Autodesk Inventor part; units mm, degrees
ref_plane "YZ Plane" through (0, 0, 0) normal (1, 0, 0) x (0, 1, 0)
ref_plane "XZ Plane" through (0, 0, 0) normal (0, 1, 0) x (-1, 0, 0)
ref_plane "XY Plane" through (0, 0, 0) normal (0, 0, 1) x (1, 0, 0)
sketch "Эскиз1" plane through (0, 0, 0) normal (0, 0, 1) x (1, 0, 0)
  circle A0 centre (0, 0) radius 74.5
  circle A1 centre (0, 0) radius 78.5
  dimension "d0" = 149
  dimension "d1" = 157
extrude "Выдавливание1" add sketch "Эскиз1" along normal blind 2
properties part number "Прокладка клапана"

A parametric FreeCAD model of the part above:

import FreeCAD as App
import Part
import Sketcher

V = App.Vector

doc = App.newDocument("Part")
body = doc.addObject("PartDesign::Body", "Body")

sketch1 = body.newObject("Sketcher::SketchObject", "Sketch")
sketch1.AttachmentSupport = (doc.getObject("XY_Plane"), [""])
sketch1.MapMode = "FlatFace"
sketch1.addGeometry(Part.Circle(V(0, 0, 0), V(0, 0, 1), 78), False)
sketch1.addGeometry(Part.Circle(V(0, 0, 0), V(0, 0, 1), 74), False)
sketch1.addConstraint(Sketcher.Constraint("Coincident", 0, 3, -1, 1))
sketch1.addConstraint(Sketcher.Constraint("Coincident", 1, 3, -1, 1))
sketch1.addConstraint(Sketcher.Constraint("Diameter", 0, 157.0))
sketch1.addConstraint(Sketcher.Constraint("Diameter", 1, 149.0))
pad1 = body.newObject("PartDesign::Pad", "Pad")
pad1.Profile = sketch1
pad1.Length = 2

doc.recompute()
